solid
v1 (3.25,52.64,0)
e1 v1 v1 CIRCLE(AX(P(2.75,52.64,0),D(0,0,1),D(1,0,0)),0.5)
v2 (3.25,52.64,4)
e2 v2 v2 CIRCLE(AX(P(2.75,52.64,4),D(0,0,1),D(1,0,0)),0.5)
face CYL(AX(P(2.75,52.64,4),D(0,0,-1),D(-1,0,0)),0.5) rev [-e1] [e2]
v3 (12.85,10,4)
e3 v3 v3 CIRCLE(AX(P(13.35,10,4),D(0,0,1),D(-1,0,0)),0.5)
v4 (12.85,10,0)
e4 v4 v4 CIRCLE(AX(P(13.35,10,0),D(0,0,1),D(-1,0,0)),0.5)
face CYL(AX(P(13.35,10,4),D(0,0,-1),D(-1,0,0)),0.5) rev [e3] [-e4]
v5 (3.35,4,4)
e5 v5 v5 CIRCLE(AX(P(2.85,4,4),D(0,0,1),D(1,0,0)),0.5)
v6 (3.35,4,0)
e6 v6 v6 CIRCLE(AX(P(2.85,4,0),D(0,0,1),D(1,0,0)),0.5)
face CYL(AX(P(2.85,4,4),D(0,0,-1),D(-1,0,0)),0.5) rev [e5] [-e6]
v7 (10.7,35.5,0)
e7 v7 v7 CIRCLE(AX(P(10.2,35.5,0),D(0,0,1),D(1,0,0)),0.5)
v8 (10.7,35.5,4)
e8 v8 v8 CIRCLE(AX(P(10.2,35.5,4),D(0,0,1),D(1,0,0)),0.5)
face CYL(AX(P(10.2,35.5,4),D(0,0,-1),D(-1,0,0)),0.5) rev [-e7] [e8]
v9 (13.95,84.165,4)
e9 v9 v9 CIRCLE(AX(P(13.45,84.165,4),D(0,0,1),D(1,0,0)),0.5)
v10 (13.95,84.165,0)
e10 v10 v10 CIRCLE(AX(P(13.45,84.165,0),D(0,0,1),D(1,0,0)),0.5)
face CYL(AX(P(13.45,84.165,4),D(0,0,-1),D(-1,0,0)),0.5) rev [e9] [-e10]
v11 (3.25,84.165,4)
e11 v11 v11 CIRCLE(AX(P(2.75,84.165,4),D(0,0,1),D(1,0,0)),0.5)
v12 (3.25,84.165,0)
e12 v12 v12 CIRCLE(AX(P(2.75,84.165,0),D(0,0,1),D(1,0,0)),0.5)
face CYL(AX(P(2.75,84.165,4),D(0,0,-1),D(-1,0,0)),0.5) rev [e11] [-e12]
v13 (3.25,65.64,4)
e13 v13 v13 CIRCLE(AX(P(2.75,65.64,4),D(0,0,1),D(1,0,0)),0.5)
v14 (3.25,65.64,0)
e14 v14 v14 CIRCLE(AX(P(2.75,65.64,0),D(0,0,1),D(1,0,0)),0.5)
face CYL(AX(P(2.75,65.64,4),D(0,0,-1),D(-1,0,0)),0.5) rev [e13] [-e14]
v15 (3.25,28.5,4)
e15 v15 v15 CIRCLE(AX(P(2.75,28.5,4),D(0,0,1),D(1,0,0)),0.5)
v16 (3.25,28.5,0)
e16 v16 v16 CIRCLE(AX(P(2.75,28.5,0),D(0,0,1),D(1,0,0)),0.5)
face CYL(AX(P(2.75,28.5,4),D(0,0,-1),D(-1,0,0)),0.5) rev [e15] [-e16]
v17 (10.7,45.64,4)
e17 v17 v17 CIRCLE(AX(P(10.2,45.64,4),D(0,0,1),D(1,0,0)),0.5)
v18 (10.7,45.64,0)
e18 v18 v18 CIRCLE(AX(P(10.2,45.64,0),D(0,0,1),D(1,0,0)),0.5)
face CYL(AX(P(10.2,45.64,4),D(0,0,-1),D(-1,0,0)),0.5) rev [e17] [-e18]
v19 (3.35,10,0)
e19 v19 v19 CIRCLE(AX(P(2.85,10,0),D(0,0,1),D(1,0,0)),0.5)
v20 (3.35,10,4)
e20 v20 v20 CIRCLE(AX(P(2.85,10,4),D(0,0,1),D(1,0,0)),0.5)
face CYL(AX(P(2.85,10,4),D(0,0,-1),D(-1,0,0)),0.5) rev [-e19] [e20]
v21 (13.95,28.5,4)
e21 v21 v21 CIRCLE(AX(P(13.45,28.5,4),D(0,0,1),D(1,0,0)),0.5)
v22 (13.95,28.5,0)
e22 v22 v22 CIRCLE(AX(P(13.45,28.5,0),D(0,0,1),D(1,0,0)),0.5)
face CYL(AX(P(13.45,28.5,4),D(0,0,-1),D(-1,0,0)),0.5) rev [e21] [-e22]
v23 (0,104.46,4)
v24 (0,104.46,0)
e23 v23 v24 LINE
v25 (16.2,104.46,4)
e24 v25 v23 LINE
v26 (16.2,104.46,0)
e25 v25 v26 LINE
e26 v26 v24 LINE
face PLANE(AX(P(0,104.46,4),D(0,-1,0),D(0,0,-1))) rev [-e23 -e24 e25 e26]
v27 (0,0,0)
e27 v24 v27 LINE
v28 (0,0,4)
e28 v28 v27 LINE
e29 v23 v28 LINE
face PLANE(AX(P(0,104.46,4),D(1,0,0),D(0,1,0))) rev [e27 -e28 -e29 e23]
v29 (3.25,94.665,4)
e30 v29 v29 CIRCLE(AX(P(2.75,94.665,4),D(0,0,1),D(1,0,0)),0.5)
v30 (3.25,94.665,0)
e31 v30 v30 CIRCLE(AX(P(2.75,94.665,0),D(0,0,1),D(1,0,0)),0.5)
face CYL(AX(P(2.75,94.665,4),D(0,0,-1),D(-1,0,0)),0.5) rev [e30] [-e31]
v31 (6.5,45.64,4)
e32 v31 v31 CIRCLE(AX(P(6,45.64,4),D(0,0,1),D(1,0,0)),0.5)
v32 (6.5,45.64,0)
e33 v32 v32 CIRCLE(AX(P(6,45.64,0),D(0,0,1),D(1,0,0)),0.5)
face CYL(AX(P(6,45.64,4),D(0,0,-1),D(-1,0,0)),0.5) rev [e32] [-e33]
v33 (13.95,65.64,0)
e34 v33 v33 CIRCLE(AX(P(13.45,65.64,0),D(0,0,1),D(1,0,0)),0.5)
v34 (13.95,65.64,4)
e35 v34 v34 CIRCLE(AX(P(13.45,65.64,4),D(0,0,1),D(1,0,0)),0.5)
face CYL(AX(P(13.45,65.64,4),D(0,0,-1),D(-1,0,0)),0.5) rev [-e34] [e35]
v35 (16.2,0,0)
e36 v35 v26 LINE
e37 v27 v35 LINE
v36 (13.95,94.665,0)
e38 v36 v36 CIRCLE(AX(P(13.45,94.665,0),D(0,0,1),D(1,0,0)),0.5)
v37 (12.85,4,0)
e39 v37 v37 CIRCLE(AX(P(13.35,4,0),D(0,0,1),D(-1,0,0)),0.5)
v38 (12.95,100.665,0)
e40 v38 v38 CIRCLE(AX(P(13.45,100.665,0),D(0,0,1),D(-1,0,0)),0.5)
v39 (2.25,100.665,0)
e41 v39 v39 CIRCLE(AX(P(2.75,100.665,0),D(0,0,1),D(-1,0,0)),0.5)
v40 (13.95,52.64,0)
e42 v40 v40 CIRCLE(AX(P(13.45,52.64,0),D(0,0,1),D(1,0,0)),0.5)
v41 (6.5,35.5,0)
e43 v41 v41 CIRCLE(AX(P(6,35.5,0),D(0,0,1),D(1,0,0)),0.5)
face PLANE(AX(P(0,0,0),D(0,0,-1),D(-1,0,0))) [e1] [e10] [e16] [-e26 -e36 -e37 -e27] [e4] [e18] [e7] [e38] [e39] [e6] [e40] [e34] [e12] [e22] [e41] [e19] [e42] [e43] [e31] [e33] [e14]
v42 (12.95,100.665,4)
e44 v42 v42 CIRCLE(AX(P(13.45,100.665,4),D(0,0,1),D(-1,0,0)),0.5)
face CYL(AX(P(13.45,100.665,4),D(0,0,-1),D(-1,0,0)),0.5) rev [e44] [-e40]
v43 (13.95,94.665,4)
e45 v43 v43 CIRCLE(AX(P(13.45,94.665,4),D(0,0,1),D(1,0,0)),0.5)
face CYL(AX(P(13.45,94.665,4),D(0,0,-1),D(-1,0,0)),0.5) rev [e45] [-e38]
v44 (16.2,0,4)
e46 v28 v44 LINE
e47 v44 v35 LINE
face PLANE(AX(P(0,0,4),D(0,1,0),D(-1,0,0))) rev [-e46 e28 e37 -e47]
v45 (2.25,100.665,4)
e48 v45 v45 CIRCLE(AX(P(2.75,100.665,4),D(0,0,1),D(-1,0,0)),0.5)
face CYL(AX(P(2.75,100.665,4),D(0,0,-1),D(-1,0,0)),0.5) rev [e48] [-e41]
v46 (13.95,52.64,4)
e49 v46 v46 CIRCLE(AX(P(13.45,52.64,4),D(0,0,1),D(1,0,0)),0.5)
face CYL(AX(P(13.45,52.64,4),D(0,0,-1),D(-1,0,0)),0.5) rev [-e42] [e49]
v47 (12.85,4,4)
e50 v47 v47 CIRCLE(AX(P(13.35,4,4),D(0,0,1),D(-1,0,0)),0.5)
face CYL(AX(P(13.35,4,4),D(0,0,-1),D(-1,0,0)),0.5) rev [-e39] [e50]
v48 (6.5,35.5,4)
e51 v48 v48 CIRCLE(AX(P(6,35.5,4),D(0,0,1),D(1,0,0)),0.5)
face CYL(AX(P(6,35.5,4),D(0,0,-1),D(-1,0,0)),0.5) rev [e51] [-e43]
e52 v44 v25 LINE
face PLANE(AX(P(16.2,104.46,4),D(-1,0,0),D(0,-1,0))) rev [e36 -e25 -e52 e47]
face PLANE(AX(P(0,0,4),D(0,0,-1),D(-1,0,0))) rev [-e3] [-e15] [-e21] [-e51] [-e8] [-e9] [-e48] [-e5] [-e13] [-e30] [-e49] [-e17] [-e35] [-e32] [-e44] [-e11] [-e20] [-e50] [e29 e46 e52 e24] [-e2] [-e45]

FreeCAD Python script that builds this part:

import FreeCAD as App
import Part
import Sketcher
from FreeCAD import Vector


def add_polygon(sketch, points):
    """Adds a closed chain of lines whose ends are joined by coincident constraints."""
    first, n = sketch.GeometryCount, len(points)
    for a, b in zip(points, points[1:] + points[:1]):
        sketch.addGeometry(Part.LineSegment(App.Vector(*a, 0), App.Vector(*b, 0)), False)
    for i in range(n):
        sketch.addConstraint(Sketcher.Constraint("Coincident", first + i, 2, first + (i + 1) % n, 1))

doc = App.newDocument("Part")
body = doc.addObject("PartDesign::Body", "Body")

sketch1 = body.newObject("Sketcher::SketchObject", "Sketch")
sketch1.AttachmentSupport = (doc.getObject("XY_Plane"), [""])
sketch1.MapMode = "FlatFace"
add_polygon(sketch1, [(0, 104.5), (0, 0), (16.2, 0), (16.2, 104.5)])
sketch1.addGeometry(Part.Circle(Vector(2.9, 4, 0), Vector(0, 0, 1), 0.5), False)
sketch1.addGeometry(Part.Circle(Vector(2.9, 10, 0), Vector(0, 0, 1), 0.5), False)
sketch1.addGeometry(Part.Circle(Vector(2.8, 28.5, 0), Vector(0, 0, 1), 0.5), False)
sketch1.addGeometry(Part.Circle(Vector(6, 35.5, 0), Vector(0, 0, 1), 0.5), False)
sketch1.addGeometry(Part.Circle(Vector(6, 45.6, 0), Vector(0, 0, 1), 0.5), False)
sketch1.addGeometry(Part.Circle(Vector(13.3, 4, 0), Vector(0, 0, 1), 0.5), False)
sketch1.addGeometry(Part.Circle(Vector(13.3, 10, 0), Vector(0, 0, 1), 0.5), False)
sketch1.addGeometry(Part.Circle(Vector(10.2, 35.5, 0), Vector(0, 0, 1), 0.5), False)
sketch1.addGeometry(Part.Circle(Vector(10.2, 45.6, 0), Vector(0, 0, 1), 0.5), False)
sketch1.addGeometry(Part.Circle(Vector(13.4, 28.5, 0), Vector(0, 0, 1), 0.5), False)
sketch1.addGeometry(Part.Circle(Vector(2.8, 52.6, 0), Vector(0, 0, 1), 0.5), False)
sketch1.addGeometry(Part.Circle(Vector(2.8, 65.6, 0), Vector(0, 0, 1), 0.5), False)
sketch1.addGeometry(Part.Circle(Vector(2.8, 84.2, 0), Vector(0, 0, 1), 0.5), False)
sketch1.addGeometry(Part.Circle(Vector(2.8, 94.7, 0), Vector(0, 0, 1), 0.5), False)
sketch1.addGeometry(Part.Circle(Vector(2.8, 100.7, 0), Vector(0, 0, 1), 0.5), False)
sketch1.addGeometry(Part.Circle(Vector(13.4, 52.6, 0), Vector(0, 0, 1), 0.5), False)
sketch1.addGeometry(Part.Circle(Vector(13.4, 65.6, 0), Vector(0, 0, 1), 0.5), False)
sketch1.addGeometry(Part.Circle(Vector(13.4, 84.2, 0), Vector(0, 0, 1), 0.5), False)
sketch1.addGeometry(Part.Circle(Vector(13.4, 94.7, 0), Vector(0, 0, 1), 0.5), False)
sketch1.addGeometry(Part.Circle(Vector(13.4, 100.7, 0), Vector(0, 0, 1), 0.5), False)
sketch1.addConstraint(Sketcher.Constraint("Vertical", 0))
sketch1.addConstraint(Sketcher.Constraint("Horizontal", 1))
sketch1.addConstraint(Sketcher.Constraint("Vertical", 2))
sketch1.addConstraint(Sketcher.Constraint("Horizontal", 3))
sketch1.addConstraint(Sketcher.Constraint("Coincident", 0, 2, -1, 1))
sketch1.addConstraint(Sketcher.Constraint("Equal", 4, 5))
sketch1.addConstraint(Sketcher.Constraint("Equal", 5, 6))
sketch1.addConstraint(Sketcher.Constraint("Equal", 6, 7))
sketch1.addConstraint(Sketcher.Constraint("Equal", 7, 8))
sketch1.addConstraint(Sketcher.Constraint("Equal", 8, 9))
sketch1.addConstraint(Sketcher.Constraint("Equal", 9, 10))
sketch1.addConstraint(Sketcher.Constraint("Equal", 10, 11))
sketch1.addConstraint(Sketcher.Constraint("Equal", 11, 12))
sketch1.addConstraint(Sketcher.Constraint("Equal", 12, 13))
sketch1.addConstraint(Sketcher.Constraint("Equal", 13, 14))
sketch1.addConstraint(Sketcher.Constraint("Equal", 14, 15))
sketch1.addConstraint(Sketcher.Constraint("Equal", 15, 16))
sketch1.addConstraint(Sketcher.Constraint("Equal", 16, 17))
sketch1.addConstraint(Sketcher.Constraint("Equal", 17, 18))
sketch1.addConstraint(Sketcher.Constraint("Equal", 18, 19))
sketch1.addConstraint(Sketcher.Constraint("Equal", 19, 20))
sketch1.addConstraint(Sketcher.Constraint("Equal", 20, 21))
sketch1.addConstraint(Sketcher.Constraint("Equal", 21, 22))
sketch1.addConstraint(Sketcher.Constraint("Equal", 22, 23))
sketch1.addConstraint(Sketcher.Constraint("Horizontal", 4, 3, 9, 3))
sketch1.addConstraint(Sketcher.Constraint("Horizontal", 5, 3, 10, 3))
sketch1.addConstraint(Sketcher.Constraint("Horizontal", 7, 3, 11, 3))
sketch1.addConstraint(Sketcher.Constraint("Horizontal", 8, 3, 12, 3))
sketch1.addConstraint(Sketcher.Constraint("Horizontal", 6, 3, 13, 3))
sketch1.addConstraint(Sketcher.Constraint("Horizontal", 14, 3, 19, 3))
sketch1.addConstraint(Sketcher.Constraint("Horizontal", 15, 3, 20, 3))
sketch1.addConstraint(Sketcher.Constraint("Horizontal", 16, 3, 21, 3))
sketch1.addConstraint(Sketcher.Constraint("Horizontal", 17, 3, 22, 3))
sketch1.addConstraint(Sketcher.Constraint("Horizontal", 18, 3, 23, 3))
sketch1.addConstraint(Sketcher.Constraint("Vertical", 4, 3, 5, 3))
sketch1.addConstraint(Sketcher.Constraint("Vertical", 7, 3, 8, 3))
sketch1.addConstraint(Sketcher.Constraint("Vertical", 9, 3, 10, 3))
sketch1.addConstraint(Sketcher.Constraint("Vertical", 11, 3, 12, 3))
sketch1.addConstraint(Sketcher.Constraint("Vertical", 6, 3, 14, 3))
sketch1.addConstraint(Sketcher.Constraint("Vertical", 14, 3, 15, 3))
sketch1.addConstraint(Sketcher.Constraint("Vertical", 15, 3, 16, 3))
sketch1.addConstraint(Sketcher.Constraint("Vertical", 16, 3, 17, 3))
sketch1.addConstraint(Sketcher.Constraint("Vertical", 17, 3, 18, 3))
sketch1.addConstraint(Sketcher.Constraint("Vertical", 13, 3, 19, 3))
sketch1.addConstraint(Sketcher.Constraint("Vertical", 19, 3, 20, 3))
sketch1.addConstraint(Sketcher.Constraint("Vertical", 20, 3, 21, 3))
sketch1.addConstraint(Sketcher.Constraint("Vertical", 21, 3, 22, 3))
sketch1.addConstraint(Sketcher.Constraint("Vertical", 22, 3, 23, 3))
sketch1.addConstraint(Sketcher.Constraint("Diameter", 4, 1.0))
sketch1.addConstraint(Sketcher.Constraint("DistanceX", 1, 1, 1, 2, 16.2))
sketch1.addConstraint(Sketcher.Constraint("DistanceY", -1, 1, 4, 3, 4.0))
sketch1.addConstraint(Sketcher.Constraint("DistanceY", -1, 1, 5, 3, 10.0))
sketch1.addConstraint(Sketcher.Constraint("DistanceX", -1, 1, 7, 3, 6.0))
sketch1.addConstraint(Sketcher.Constraint("DistanceY", 6, 3, 7, 3, 7.0))
sketch1.addConstraint(Sketcher.Constraint("DistanceY", 8, 3, 14, 3, 7.0))
sketch1.addConstraint(Sketcher.Constraint("DistanceY", 14, 3, 15, 3, 13.0))
sketch1.addConstraint(Sketcher.Constraint("DistanceY", 17, 3, 18, 3, 6.0))
sketch1.addConstraint(Sketcher.Constraint("DistanceY", 0, 2, 0, 1, 104.46))
sketch1.addConstraint(Sketcher.Constraint("DistanceY", -1, 1, 6, 3, 28.5))
sketch1.addConstraint(Sketcher.Constraint("DistanceX", -1, 1, 11, 3, 10.2))
sketch1.addConstraint(Sketcher.Constraint("DistanceX", 6, 3, 5, 3, 0.1))
sketch1.addConstraint(Sketcher.Constraint("DistanceX", 4, 3, 9, 3, 10.5))
sketch1.addConstraint(Sketcher.Constraint("DistanceX", 6, 3, 13, 3, 10.7))
sketch1.addConstraint(Sketcher.Constraint("DistanceY", 16, 3, 17, 3, 10.5))
sketch1.addConstraint(Sketcher.Constraint("DistanceX", -1, 1, 4, 3, 2.85))
sketch1.addConstraint(Sketcher.Constraint("DistanceY", -1, 1, 8, 3, 45.64))
sketch1.addConstraint(Sketcher.Constraint("DistanceY", -1, 1, 16, 3, 84.165))
pad1 = body.newObject("PartDesign::Pad", "Pad")
pad1.Profile = sketch1
pad1.Length = 4

doc.recompute()
